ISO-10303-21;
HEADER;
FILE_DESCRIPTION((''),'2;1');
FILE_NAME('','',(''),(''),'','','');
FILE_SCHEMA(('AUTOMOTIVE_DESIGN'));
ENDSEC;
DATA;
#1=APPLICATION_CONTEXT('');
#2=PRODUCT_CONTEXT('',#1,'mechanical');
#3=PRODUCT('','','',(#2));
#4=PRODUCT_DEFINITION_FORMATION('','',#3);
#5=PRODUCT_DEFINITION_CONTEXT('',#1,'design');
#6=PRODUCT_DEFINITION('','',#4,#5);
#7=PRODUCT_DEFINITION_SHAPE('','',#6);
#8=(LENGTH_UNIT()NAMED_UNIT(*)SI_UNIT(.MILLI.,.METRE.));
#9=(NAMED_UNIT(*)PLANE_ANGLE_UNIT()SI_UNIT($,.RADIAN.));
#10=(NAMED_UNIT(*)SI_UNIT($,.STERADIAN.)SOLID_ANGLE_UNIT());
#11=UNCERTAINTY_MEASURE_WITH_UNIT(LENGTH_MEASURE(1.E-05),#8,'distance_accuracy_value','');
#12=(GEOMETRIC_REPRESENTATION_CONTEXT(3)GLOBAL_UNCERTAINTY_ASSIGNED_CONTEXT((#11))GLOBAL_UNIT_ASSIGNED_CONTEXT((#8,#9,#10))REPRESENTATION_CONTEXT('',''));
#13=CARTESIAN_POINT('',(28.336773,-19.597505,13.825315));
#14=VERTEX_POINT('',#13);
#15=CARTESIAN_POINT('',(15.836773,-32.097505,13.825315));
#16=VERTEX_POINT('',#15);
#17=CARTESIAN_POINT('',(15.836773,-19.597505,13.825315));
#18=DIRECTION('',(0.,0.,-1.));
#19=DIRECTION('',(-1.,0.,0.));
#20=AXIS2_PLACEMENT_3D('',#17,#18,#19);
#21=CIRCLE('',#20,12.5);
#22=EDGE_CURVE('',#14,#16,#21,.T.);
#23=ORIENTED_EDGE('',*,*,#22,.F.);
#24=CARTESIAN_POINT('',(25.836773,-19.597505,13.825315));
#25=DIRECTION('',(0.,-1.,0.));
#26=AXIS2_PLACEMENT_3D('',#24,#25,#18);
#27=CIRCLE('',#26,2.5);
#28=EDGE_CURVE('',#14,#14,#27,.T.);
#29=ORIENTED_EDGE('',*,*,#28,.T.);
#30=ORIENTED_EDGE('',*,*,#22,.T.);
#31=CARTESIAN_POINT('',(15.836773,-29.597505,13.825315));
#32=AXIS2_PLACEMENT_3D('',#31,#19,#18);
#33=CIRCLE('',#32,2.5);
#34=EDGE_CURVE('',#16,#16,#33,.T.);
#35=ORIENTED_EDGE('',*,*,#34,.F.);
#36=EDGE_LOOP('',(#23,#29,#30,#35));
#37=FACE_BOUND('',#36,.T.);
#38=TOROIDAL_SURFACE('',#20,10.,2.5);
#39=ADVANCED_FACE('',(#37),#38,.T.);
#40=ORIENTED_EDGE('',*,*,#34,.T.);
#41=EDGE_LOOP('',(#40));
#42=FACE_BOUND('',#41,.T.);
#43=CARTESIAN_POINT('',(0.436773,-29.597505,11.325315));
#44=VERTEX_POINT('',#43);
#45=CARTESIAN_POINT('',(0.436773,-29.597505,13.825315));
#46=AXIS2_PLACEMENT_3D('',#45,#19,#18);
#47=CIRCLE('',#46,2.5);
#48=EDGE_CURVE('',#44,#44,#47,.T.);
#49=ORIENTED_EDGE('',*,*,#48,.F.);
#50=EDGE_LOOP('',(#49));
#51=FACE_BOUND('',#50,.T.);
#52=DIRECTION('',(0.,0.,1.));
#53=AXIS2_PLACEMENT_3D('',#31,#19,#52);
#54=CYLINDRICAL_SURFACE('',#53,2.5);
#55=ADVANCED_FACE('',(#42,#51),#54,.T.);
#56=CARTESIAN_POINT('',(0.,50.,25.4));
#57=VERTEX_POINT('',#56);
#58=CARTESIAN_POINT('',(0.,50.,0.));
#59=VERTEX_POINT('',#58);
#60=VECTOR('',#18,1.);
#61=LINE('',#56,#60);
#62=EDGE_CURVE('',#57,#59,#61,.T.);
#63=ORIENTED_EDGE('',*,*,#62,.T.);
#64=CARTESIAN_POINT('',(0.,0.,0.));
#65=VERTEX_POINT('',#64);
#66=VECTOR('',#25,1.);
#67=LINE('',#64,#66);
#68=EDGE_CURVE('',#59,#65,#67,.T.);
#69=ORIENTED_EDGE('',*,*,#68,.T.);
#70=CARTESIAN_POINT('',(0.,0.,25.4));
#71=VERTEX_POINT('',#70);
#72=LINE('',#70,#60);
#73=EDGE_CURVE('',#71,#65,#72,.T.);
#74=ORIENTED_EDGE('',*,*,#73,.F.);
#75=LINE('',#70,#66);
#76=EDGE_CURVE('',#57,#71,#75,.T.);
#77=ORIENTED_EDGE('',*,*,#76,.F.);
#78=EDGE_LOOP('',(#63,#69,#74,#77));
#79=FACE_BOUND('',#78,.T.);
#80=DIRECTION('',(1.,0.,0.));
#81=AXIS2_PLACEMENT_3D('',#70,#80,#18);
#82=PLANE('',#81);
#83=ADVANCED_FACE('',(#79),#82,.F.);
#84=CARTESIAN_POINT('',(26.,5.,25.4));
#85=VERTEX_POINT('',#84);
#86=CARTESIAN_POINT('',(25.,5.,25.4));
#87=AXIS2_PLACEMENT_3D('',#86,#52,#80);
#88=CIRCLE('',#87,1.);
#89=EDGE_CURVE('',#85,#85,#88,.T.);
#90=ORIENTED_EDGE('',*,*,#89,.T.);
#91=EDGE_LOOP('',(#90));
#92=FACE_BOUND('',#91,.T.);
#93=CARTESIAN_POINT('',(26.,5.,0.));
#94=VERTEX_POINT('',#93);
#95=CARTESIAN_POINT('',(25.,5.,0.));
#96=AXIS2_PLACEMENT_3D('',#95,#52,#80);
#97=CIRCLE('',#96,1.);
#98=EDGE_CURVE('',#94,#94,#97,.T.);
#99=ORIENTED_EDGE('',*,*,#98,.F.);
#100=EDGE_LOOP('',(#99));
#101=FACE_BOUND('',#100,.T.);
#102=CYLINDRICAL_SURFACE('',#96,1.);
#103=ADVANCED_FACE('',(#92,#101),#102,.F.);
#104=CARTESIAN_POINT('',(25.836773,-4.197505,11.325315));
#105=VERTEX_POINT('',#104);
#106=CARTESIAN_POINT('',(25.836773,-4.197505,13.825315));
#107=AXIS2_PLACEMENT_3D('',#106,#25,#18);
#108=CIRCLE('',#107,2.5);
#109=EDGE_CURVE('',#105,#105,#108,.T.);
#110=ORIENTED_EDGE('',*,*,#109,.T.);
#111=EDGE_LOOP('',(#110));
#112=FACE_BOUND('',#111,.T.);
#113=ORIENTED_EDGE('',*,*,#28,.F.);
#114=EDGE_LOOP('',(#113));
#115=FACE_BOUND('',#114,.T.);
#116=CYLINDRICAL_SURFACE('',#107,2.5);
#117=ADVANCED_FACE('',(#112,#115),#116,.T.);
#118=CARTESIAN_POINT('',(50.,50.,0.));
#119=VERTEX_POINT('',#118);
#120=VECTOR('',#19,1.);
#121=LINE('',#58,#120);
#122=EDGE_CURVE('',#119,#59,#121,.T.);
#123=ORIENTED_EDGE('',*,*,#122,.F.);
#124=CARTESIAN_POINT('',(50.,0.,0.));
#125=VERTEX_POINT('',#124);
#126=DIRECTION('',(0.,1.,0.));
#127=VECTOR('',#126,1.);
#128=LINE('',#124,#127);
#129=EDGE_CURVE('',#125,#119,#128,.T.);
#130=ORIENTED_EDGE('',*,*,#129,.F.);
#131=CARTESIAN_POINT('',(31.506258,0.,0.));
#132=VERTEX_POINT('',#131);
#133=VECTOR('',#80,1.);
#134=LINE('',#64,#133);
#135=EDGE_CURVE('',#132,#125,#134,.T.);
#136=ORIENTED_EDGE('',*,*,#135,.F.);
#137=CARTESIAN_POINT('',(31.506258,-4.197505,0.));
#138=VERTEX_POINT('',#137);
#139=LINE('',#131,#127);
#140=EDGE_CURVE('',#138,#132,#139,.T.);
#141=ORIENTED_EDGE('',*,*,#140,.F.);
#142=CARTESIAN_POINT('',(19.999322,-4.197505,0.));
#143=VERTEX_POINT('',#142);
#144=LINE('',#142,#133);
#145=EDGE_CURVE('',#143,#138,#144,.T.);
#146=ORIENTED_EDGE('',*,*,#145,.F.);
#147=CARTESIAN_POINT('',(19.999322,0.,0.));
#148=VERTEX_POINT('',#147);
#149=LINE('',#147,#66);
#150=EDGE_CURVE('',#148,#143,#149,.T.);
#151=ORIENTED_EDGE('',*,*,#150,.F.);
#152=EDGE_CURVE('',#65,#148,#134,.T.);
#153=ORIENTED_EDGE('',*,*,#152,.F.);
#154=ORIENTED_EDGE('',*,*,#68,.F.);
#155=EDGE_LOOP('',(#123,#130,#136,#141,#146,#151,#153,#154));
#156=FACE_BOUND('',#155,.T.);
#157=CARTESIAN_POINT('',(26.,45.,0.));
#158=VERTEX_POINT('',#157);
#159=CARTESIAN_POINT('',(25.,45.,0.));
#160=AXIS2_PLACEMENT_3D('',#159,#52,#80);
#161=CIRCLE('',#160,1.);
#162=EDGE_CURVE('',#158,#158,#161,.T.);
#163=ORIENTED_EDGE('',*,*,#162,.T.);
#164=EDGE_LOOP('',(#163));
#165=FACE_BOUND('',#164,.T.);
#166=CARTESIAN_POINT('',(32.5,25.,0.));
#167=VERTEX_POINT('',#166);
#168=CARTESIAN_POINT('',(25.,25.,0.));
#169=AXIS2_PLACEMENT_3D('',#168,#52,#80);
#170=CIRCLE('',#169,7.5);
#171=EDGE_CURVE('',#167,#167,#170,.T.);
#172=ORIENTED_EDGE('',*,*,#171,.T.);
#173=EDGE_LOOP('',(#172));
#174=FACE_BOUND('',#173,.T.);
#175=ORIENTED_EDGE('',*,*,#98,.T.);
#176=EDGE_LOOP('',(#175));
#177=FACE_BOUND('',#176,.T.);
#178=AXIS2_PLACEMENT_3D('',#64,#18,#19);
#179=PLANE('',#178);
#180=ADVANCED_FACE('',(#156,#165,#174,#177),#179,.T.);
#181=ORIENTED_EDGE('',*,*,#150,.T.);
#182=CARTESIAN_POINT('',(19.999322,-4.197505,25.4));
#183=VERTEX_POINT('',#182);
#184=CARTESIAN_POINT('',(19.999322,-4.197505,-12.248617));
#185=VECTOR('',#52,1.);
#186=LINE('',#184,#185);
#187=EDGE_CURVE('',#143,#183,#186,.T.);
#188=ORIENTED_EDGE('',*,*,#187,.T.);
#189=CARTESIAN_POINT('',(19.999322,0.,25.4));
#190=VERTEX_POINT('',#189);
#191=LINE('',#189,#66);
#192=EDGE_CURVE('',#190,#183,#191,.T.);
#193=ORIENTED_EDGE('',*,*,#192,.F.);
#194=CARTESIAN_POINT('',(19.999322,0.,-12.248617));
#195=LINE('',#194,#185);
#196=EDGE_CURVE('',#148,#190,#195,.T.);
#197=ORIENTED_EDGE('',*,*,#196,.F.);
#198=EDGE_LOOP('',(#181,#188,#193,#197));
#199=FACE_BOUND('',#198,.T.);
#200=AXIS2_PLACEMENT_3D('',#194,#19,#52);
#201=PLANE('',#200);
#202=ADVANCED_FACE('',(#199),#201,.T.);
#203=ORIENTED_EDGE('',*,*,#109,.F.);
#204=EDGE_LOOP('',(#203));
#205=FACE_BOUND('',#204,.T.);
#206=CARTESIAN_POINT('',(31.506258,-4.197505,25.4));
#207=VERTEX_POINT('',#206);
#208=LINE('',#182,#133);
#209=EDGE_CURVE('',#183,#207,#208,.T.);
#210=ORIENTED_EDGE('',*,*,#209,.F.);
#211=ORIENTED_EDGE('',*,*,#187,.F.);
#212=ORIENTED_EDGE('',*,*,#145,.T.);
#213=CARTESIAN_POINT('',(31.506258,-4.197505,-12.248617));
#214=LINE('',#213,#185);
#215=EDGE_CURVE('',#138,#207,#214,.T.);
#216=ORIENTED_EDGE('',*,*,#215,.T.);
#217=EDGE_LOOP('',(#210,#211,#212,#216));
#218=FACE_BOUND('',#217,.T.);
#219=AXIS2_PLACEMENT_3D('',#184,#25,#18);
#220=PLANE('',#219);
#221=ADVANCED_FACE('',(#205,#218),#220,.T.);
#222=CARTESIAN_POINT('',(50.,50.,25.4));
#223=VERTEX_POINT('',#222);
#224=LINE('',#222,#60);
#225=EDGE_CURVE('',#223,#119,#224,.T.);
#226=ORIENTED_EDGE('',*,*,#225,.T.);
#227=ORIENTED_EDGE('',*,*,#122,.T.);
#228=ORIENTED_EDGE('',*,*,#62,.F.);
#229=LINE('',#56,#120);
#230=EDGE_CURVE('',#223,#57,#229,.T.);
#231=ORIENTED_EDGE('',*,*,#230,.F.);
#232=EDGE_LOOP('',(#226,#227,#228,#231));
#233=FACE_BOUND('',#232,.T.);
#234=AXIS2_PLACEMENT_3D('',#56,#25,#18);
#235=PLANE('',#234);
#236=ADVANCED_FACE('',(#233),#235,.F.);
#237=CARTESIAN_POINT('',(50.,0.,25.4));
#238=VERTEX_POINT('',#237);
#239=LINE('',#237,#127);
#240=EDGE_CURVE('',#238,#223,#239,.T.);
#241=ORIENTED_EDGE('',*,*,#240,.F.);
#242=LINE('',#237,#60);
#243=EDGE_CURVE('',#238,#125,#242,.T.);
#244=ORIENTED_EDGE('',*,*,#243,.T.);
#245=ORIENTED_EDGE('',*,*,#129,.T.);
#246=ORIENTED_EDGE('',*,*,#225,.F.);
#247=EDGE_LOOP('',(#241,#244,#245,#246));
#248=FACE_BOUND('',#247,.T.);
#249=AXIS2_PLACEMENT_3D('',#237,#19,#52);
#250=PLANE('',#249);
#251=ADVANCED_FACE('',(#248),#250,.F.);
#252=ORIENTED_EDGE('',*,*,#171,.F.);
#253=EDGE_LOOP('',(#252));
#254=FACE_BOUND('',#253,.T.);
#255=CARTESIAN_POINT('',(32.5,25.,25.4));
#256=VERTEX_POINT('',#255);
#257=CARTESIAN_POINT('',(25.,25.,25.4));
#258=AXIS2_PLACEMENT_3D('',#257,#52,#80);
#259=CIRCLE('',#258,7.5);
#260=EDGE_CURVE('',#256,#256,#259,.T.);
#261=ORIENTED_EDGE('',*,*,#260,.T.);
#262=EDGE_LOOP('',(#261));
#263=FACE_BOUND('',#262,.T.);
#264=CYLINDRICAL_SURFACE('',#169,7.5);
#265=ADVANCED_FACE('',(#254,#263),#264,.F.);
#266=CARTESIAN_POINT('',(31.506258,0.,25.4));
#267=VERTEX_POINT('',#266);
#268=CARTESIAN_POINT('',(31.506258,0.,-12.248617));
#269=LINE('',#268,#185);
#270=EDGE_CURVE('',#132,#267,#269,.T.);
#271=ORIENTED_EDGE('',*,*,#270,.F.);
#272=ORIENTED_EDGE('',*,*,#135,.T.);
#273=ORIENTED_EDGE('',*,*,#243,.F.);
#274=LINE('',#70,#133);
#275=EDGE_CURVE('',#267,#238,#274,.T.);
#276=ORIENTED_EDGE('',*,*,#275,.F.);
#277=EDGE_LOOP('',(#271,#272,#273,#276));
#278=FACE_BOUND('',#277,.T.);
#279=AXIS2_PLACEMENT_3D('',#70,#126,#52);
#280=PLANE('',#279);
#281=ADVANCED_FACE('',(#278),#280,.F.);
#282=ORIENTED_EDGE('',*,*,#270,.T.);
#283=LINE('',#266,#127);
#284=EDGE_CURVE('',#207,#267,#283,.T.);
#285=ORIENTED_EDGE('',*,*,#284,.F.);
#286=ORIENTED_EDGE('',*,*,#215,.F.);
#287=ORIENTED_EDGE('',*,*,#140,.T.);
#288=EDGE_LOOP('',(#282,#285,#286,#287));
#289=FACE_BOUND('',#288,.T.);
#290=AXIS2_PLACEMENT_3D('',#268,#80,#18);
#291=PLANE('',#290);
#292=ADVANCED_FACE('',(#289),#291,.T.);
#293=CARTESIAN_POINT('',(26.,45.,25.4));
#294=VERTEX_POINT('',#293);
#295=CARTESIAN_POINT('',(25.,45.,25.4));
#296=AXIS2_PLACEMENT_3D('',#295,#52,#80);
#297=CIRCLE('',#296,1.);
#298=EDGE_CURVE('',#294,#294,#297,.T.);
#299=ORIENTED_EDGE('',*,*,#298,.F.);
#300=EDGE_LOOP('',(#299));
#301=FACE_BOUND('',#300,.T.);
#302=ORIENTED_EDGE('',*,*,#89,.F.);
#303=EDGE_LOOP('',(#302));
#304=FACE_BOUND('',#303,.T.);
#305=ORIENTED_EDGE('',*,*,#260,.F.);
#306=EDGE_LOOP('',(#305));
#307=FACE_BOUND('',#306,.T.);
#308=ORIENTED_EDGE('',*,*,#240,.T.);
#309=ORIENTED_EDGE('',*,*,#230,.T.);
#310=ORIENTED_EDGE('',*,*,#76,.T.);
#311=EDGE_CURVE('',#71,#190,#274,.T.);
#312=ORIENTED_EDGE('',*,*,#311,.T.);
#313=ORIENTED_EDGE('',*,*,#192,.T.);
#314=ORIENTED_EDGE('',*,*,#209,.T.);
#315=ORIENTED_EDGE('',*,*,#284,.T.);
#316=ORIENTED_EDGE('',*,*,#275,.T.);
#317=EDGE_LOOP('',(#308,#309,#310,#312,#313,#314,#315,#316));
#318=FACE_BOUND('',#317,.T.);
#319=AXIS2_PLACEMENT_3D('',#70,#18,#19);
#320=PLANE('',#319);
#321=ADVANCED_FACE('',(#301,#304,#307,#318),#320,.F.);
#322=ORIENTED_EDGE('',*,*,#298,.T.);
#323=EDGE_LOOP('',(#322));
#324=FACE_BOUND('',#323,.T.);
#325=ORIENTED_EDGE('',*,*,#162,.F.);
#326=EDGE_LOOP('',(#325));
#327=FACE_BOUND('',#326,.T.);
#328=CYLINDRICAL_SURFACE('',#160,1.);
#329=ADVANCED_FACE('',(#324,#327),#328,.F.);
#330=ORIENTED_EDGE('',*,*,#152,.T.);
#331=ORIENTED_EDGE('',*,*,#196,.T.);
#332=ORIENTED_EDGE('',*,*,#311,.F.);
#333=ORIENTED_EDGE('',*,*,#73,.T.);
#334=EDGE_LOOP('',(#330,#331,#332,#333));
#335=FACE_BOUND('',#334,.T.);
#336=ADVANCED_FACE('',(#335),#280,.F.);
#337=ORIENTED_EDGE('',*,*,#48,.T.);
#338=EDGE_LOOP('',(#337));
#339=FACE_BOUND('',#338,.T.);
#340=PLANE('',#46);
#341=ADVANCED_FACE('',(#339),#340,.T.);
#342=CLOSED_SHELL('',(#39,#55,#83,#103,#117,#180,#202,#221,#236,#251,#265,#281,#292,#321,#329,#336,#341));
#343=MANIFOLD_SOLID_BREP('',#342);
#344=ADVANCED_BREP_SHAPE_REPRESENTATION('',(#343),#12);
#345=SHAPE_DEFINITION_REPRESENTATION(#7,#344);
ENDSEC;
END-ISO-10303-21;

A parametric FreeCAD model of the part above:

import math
import FreeCAD as App
import Part
import Sketcher
Q = App.Units.Quantity

doc = App.newDocument("Part")
body = doc.addObject("PartDesign::Body", "Body")

sketch1 = body.newObject("Sketcher::SketchObject", "Sketch")
sketch1.AttachmentSupport = (doc.getObject("XY_Plane"), [""])
sketch1.MapMode = "FlatFace"
sketch1.addGeometry([
    Part.LineSegment(App.Vector(0, 50, 0), App.Vector(0, 0, 0)),
    Part.LineSegment(App.Vector(0, 0, 0), App.Vector(50, 0, 0)),
    Part.LineSegment(App.Vector(50, 0, 0), App.Vector(50, 50, 0)),
    Part.LineSegment(App.Vector(50, 50, 0), App.Vector(0, 50, 0)),
], False)
sketch1.addConstraint([
    Sketcher.Constraint("Coincident", 0, 2, 1, 1),
    Sketcher.Constraint("Coincident", 1, 2, 2, 1),
    Sketcher.Constraint("Coincident", 2, 2, 3, 1),
    Sketcher.Constraint("Coincident", 3, 2, 0, 1),
    Sketcher.Constraint("Vertical", 0),
    Sketcher.Constraint("Horizontal", 1),
    Sketcher.Constraint("Vertical", 2),
    Sketcher.Constraint("Horizontal", 3),
    Sketcher.Constraint("Coincident", 0, 2, -1, 1),
    Sketcher.Constraint("Equal", 3, 0),
    Sketcher.Constraint("DistanceX", 1, 1, 1, 2, Q("50 mm")),
])
pad1 = body.newObject("PartDesign::Pad", "Pad")
pad1.Profile = sketch1
pad1.Length = 25.4

sketch2 = body.newObject("Sketcher::SketchObject", "Sketch001")
sketch2.AttachmentSupport = (doc.getObject("XY_Plane"), [""])
sketch2.MapMode = "FlatFace"
sketch2.AttachmentOffset = App.Placement(App.Vector(0, 0, 25.4), App.Rotation())
sketch2.addGeometry([
    Part.Circle(App.Vector(25, 25, 0), App.Vector(0, 0, 1), 7.5),
    Part.Circle(App.Vector(25, 45, 0), App.Vector(0, 0, 1), 1),
    Part.Circle(App.Vector(25, 5, 0), App.Vector(0, 0, 1), 1),
], False)
sketch2.addConstraint([
    Sketcher.Constraint("Equal", 1, 2),
    Sketcher.Constraint("Vertical", 0, 3, 1, 3),
    Sketcher.Constraint("Vertical", 1, 3, 2, 3),
    Sketcher.Constraint("Diameter", 0, Q("15 mm")),
    Sketcher.Constraint("Diameter", 1, Q("2 mm")),
    Sketcher.Constraint("DistanceX", -1, 1, 0, 3, Q("25 mm")),
    Sketcher.Constraint("DistanceY", -1, 1, 0, 3, Q("25 mm")),
    Sketcher.Constraint("DistanceY", -1, 1, 1, 3, Q("45 mm")),
    Sketcher.Constraint("DistanceY", -1, 1, 2, 3, Q("5 mm")),
])
pocket1 = body.newObject("PartDesign::Pocket", "Pocket")
pocket1.Profile = sketch2
pocket1.Type = "ThroughAll"

sketch3 = body.newObject("Sketcher::SketchObject", "Sketch002")
sketch3.AttachmentSupport = (doc.getObject("XY_Plane"), [""])
sketch3.MapMode = "FlatFace"
sketch3.AttachmentOffset = App.Placement(App.Vector(0, 0, 25.4), App.Rotation())
sketch3.addGeometry([
    Part.LineSegment(App.Vector(20, 0, 0), App.Vector(20, -4.2, 0)),
    Part.LineSegment(App.Vector(20, -4.2, 0), App.Vector(31.5, -4.2, 0)),
    Part.LineSegment(App.Vector(31.5, -4.2, 0), App.Vector(31.5, 0, 0)),
    Part.LineSegment(App.Vector(31.5, 0, 0), App.Vector(20, 0, 0)),
], False)
sketch3.addConstraint([
    Sketcher.Constraint("Coincident", 0, 2, 1, 1),
    Sketcher.Constraint("Coincident", 1, 2, 2, 1),
    Sketcher.Constraint("Coincident", 2, 2, 3, 1),
    Sketcher.Constraint("Coincident", 3, 2, 0, 1),
    Sketcher.Constraint("Vertical", 0),
    Sketcher.Constraint("Horizontal", 1),
    Sketcher.Constraint("Vertical", 2),
    Sketcher.Constraint("Horizontal", 3),
    Sketcher.Constraint("PointOnObject", 2, 2, -1),
    Sketcher.Constraint("DistanceX", 1, 1, 1, 2, Q("11.506936 mm")),
    Sketcher.Constraint("DistanceY", 0, 2, 0, 1, Q("4.197505 mm")),
    Sketcher.Constraint("DistanceX", -1, 1, 1, 2, Q("31.506258 mm")),
])
pad2 = body.newObject("PartDesign::Pad", "Pad001")
pad2.Profile = sketch3
pad2.Length = 25.4
pad2.Reversed = True

sketch4 = body.newObject("Sketcher::SketchObject", "Sketch003")
sketch4.AttachmentSupport = (doc.getObject("XZ_Plane"), [""])
sketch4.MapMode = "FlatFace"
sketch4.AttachmentOffset = App.Placement(App.Vector(0, 0, 4.197505), App.Rotation())
sketch4.addGeometry(Part.Circle(App.Vector(25.8, 13.8, 0), App.Vector(0, 0, 1), 2.5), False)
sketch4.addConstraint([
    Sketcher.Constraint("Diameter", 0, Q("5 mm")),
    Sketcher.Constraint("DistanceX", -1, 1, 0, 3, Q("25.836773 mm")),
    Sketcher.Constraint("DistanceY", -1, 1, 0, 3, Q("13.825315 mm")),
])

sketch5 = body.newObject("Sketcher::SketchObject", "Sketch004")
sketch5.AttachmentSupport = (doc.getObject("XY_Plane"), [""])
sketch5.MapMode = "FlatFace"
sketch5.AttachmentOffset = App.Placement(App.Vector(0, 0, 13.825315), App.Rotation())
sketch5.addGeometry([
    Part.LineSegment(App.Vector(26, -4, 0), App.Vector(26, -20, 0)),
    Part.ArcOfCircle(Part.Circle(App.Vector(16, -20, 0), App.Vector(0, 0, 1), 10), math.radians(-90), math.radians(0)),
    Part.LineSegment(App.Vector(16, -30, 0), App.Vector(0, -30, 0)),
], False)
sketch5.addConstraint([
    Sketcher.Constraint("Tangent", 0, 2, 1, 2),
    Sketcher.Constraint("Tangent", 1, 1, 2, 1),
    Sketcher.Constraint("Vertical", 0),
    Sketcher.Constraint("Horizontal", 2),
    Sketcher.Constraint("Equal", 2, 0),
    Sketcher.Constraint("Radius", 1, Q("10 mm")),
    Sketcher.Constraint("DistanceX", 2, 2, 2, 1, Q("15.4 mm")),
    Sketcher.Constraint("DistanceX", -1, 1, 1, 3, Q("15.836773 mm")),
    Sketcher.Constraint("DistanceY", 1, 3, -1, 1, Q("19.597505 mm")),
])
doc.recompute()

additivepipe = body.newObject("PartDesign::AdditivePipe", "AdditivePipe")
additivepipe.Profile = sketch4
additivepipe.Spine = (sketch5, ["Edge1", "Edge2", "Edge3"])

doc.recompute()
